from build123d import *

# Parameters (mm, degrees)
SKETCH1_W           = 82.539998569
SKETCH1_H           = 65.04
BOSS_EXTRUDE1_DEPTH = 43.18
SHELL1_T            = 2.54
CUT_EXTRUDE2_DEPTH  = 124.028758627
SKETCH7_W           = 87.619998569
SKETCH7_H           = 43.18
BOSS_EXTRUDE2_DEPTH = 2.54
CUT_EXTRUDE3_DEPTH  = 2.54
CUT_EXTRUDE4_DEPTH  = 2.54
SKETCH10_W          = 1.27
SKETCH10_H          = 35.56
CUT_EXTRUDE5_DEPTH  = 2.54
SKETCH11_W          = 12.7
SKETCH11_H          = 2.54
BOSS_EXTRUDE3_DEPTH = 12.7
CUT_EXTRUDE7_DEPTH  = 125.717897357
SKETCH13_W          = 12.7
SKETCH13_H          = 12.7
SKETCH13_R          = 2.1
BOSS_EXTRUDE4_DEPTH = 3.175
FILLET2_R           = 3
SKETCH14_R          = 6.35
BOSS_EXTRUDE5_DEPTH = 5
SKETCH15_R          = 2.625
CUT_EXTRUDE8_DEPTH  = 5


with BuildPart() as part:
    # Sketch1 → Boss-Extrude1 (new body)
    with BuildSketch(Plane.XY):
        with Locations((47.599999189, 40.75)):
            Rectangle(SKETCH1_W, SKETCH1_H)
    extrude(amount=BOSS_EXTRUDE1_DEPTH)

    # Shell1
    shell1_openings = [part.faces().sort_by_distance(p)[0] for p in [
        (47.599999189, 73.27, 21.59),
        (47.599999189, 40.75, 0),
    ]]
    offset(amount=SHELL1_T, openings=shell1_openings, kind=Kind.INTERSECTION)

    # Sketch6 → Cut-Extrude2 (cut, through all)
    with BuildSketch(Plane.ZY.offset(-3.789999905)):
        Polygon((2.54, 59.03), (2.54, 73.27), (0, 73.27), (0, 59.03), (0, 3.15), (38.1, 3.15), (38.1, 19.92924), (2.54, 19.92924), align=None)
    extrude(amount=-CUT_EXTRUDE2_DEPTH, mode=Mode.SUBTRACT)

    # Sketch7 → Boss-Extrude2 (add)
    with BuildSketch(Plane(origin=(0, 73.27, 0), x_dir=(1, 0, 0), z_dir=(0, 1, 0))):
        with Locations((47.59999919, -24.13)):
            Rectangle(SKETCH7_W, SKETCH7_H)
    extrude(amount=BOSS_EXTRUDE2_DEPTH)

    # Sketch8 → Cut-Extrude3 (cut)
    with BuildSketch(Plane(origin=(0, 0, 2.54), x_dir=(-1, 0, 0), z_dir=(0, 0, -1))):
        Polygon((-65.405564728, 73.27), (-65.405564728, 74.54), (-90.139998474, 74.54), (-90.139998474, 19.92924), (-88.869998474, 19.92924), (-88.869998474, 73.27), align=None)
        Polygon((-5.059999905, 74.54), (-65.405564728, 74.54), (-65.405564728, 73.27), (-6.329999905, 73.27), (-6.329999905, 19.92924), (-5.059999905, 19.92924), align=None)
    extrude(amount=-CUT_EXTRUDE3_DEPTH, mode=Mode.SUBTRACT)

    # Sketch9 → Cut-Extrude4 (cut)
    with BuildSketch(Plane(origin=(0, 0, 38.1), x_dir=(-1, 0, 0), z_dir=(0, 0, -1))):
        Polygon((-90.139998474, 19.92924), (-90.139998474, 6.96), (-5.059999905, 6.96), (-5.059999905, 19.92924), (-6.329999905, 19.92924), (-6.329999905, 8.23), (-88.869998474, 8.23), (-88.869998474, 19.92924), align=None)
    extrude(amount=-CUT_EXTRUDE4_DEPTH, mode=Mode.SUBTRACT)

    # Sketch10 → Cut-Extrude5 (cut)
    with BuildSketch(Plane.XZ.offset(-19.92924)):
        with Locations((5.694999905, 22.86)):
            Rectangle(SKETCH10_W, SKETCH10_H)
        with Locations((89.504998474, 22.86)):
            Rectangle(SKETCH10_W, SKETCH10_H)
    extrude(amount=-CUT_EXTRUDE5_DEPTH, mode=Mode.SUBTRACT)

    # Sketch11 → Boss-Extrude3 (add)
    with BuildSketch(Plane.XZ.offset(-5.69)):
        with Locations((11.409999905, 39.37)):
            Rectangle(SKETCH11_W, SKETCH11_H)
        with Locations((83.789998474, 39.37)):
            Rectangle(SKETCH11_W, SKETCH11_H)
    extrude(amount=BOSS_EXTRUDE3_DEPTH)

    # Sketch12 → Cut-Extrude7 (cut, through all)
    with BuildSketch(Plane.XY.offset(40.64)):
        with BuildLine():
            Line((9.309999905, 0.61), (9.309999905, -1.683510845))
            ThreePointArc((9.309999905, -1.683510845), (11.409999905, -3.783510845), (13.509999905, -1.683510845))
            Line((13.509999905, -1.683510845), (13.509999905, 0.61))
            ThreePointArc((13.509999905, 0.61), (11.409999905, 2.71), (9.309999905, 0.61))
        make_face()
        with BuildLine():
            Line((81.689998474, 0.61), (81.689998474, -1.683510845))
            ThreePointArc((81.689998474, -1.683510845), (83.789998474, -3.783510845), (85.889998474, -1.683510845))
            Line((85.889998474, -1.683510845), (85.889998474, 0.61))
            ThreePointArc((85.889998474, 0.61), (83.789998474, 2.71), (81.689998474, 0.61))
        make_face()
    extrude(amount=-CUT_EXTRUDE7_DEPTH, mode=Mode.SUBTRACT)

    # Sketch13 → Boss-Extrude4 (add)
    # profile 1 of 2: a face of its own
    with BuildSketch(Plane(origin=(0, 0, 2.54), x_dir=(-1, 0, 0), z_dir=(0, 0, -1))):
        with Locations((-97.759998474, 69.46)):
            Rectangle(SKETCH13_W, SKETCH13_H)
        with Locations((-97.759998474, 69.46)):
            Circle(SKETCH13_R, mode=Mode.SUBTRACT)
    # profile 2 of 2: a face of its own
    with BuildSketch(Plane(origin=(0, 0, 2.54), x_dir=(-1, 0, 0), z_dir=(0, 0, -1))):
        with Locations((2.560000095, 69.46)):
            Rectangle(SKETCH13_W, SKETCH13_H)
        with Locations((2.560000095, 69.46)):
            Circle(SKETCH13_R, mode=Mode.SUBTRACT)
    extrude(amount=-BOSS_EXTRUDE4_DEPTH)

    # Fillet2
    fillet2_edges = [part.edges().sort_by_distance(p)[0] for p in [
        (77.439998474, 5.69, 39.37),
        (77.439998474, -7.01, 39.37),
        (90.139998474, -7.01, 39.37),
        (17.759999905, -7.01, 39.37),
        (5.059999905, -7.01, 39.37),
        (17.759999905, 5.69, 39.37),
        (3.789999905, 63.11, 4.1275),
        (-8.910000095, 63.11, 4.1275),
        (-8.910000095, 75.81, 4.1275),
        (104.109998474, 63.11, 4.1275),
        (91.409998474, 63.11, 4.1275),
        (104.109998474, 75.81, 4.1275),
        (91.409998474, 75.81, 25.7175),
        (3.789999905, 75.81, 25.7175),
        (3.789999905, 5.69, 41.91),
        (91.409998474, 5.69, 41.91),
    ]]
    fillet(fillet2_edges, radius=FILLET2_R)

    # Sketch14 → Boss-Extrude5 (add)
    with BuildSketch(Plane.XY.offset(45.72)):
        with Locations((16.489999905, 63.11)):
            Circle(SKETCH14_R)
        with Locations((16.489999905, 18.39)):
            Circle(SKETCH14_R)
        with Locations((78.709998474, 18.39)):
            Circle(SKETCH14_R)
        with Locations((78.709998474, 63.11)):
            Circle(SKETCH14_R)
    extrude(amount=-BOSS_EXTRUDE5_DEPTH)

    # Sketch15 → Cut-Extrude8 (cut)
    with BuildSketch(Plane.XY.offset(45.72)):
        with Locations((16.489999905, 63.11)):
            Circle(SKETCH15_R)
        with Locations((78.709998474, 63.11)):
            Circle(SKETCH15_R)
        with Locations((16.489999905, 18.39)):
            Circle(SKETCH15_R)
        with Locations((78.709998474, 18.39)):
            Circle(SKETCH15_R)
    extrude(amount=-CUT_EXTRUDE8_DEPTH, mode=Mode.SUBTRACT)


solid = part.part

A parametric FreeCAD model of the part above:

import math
import FreeCAD as App
import Part
import Sketcher
from FreeCAD import Vector
Q = App.Units.Quantity


def edges_at(feature, points):
    """Names of the edges that pass closest to the given points."""
    edges = feature.Shape.Edges
    near = lambda p: min(range(len(edges)), key=lambda i: edges[i].distToShape(Part.Vertex(*p))[0])
    return sorted({f"Edge{near(p) + 1}" for p in points})


def faces_at(feature, points):
    """Names of the faces that lie closest to the given points."""
    faces = feature.Shape.Faces
    near = lambda p: min(range(len(faces)), key=lambda i: faces[i].distToShape(Part.Vertex(*p))[0])
    return sorted({f"Face{near(p) + 1}" for p in points})

doc = App.newDocument("Part")
body = doc.addObject("PartDesign::Body", "Body")

# Sketch on XY plane
sketch1 = body.newObject("Sketcher::SketchObject", "Sketch")
sketch1.AttachmentSupport = (doc.getObject("XY_Plane"), [""])
sketch1.MapMode = "FlatFace"
sketch1.addGeometry(Part.LineSegment(Vector(6, 73, 0), Vector(6, 8, 0)), False)
sketch1.addGeometry(Part.LineSegment(Vector(6, 8, 0), Vector(89, 8, 0)), False)
sketch1.addGeometry(Part.LineSegment(Vector(89, 8, 0), Vector(89, 73, 0)), False)
sketch1.addGeometry(Part.LineSegment(Vector(89, 73, 0), Vector(6, 73, 0)), False)
sketch1.addConstraint(Sketcher.Constraint("Coincident", 0, 2, 1, 1))
sketch1.addConstraint(Sketcher.Constraint("Coincident", 1, 2, 2, 1))
sketch1.addConstraint(Sketcher.Constraint("Coincident", 2, 2, 3, 1))
sketch1.addConstraint(Sketcher.Constraint("Coincident", 3, 2, 0, 1))
sketch1.addConstraint(Sketcher.Constraint("Vertical", 0))
sketch1.addConstraint(Sketcher.Constraint("Horizontal", 1))
sketch1.addConstraint(Sketcher.Constraint("Vertical", 2))
sketch1.addConstraint(Sketcher.Constraint("Horizontal", 3))
sketch1.addConstraint(Sketcher.Constraint("DistanceX", 1, 1, 1, 2, 82.539999))
sketch1.addConstraint(Sketcher.Constraint("DistanceY", 0, 2, 0, 1, 65.04))
sketch1.addConstraint(Sketcher.Constraint("DistanceX", -1, 1, 0, 2, 6.33))
sketch1.addConstraint(Sketcher.Constraint("DistanceY", -1, 1, 0, 2, 8.23))
pad1 = body.newObject("PartDesign::Pad", "Pad")
pad1.Profile = sketch1
pad1.Length = Q("1.7 in")
doc.recompute()

thickness = body.newObject("PartDesign::Thickness", "Thickness")
thickness.Base = (pad1, faces_at(pad1, [(47.6, 73.27, 21.59), (47.6, 40.75, 0)]))
thickness.Value = Q("0.1 in")
thickness.Reversed = False
thickness.Join = "Intersection"

# Sketch on YZ plane
sketch2 = body.newObject("Sketcher::SketchObject", "Sketch001")
sketch2.AttachmentSupport = (doc.getObject("YZ_Plane"), [""])
sketch2.MapMode = "FlatFace"
sketch2.AttachmentOffset = App.Placement(Vector(0, 0, 3.79), App.Rotation())
sketch2.addGeometry(Part.LineSegment(Vector(73.3, 2.5, 0), Vector(73.3, 0, 0)), False)
sketch2.addGeometry(Part.LineSegment(Vector(73.3, 0, 0), Vector(3.1, 0, 0)), False)
sketch2.addGeometry(Part.LineSegment(Vector(3.1, 0, 0), Vector(3.1, 38.1, 0)), False)
sketch2.addGeometry(Part.LineSegment(Vector(3.1, 38.1, 0), Vector(19.9, 38.1, 0)), False)
sketch2.addGeometry(Part.LineSegment(Vector(19.9, 38.1, 0), Vector(19.9, 2.5, 0)), False)
sketch2.addGeometry(Part.LineSegment(Vector(19.9, 2.5, 0), Vector(73.3, 2.5, 0)), False)
sketch2.addConstraint(Sketcher.Constraint("Coincident", 0, 2, 1, 1))
sketch2.addConstraint(Sketcher.Constraint("Coincident", 1, 2, 2, 1))
sketch2.addConstraint(Sketcher.Constraint("Coincident", 2, 2, 3, 1))
sketch2.addConstraint(Sketcher.Constraint("Coincident", 3, 2, 4, 1))
sketch2.addConstraint(Sketcher.Constraint("Coincident", 4, 2, 5, 1))
sketch2.addConstraint(Sketcher.Constraint("Coincident", 5, 2, 0, 1))
sketch2.addConstraint(Sketcher.Constraint("Vertical", 0))
sketch2.addConstraint(Sketcher.Constraint("Horizontal", 1))
sketch2.addConstraint(Sketcher.Constraint("Vertical", 2))
sketch2.addConstraint(Sketcher.Constraint("Horizontal", 3))
sketch2.addConstraint(Sketcher.Constraint("Vertical", 4))
sketch2.addConstraint(Sketcher.Constraint("Horizontal", 5))
sketch2.addConstraint(Sketcher.Constraint("PointOnObject", 0, 2, -1))
sketch2.addConstraint(Sketcher.Constraint("DistanceY", 0, 2, 0, 1, Q("0.1 in")))
sketch2.addConstraint(Sketcher.Constraint("DistanceY", 2, 1, 2, 2, Q("1.5 in")))
sketch2.addConstraint(Sketcher.Constraint("DistanceX", 3, 1, 3, 2, Q("0.6606 in")))
sketch2.addConstraint(Sketcher.Constraint("DistanceX", 1, 2, 1, 1, 70.12))
sketch2.addConstraint(Sketcher.Constraint("DistanceX", -1, 1, 0, 2, 73.27))
pocket1 = body.newObject("PartDesign::Pocket", "Pocket")
pocket1.Profile = sketch2
pocket1.Type = "ThroughAll"
pocket1.Reversed = True

# Sketch on XZ plane
sketch3 = body.newObject("Sketcher::SketchObject", "Sketch002")
sketch3.AttachmentSupport = (doc.getObject("XZ_Plane"), [""])
sketch3.MapMode = "FlatFace"
sketch3.AttachmentOffset = App.Placement(Vector(0, 0, -73.27), App.Rotation())
sketch3.addGeometry(Part.LineSegment(Vector(4, 3, 0), Vector(4, 46, 0)), False)
sketch3.addGeometry(Part.LineSegment(Vector(4, 46, 0), Vector(91, 46, 0)), False)
sketch3.addGeometry(Part.LineSegment(Vector(91, 46, 0), Vector(91, 3, 0)), False)
sketch3.addGeometry(Part.LineSegment(Vector(91, 3, 0), Vector(4, 3, 0)), False)
sketch3.addConstraint(Sketcher.Constraint("Coincident", 0, 2, 1, 1))
sketch3.addConstraint(Sketcher.Constraint("Coincident", 1, 2, 2, 1))
sketch3.addConstraint(Sketcher.Constraint("Coincident", 2, 2, 3, 1))
sketch3.addConstraint(Sketcher.Constraint("Coincident", 3, 2, 0, 1))
sketch3.addConstraint(Sketcher.Constraint("Vertical", 0))
sketch3.addConstraint(Sketcher.Constraint("Horizontal", 1))
sketch3.addConstraint(Sketcher.Constraint("Vertical", 2))
sketch3.addConstraint(Sketcher.Constraint("Horizontal", 3))
sketch3.addConstraint(Sketcher.Constraint("DistanceY", 0, 1, 0, 2, Q("1.7 in")))
sketch3.addConstraint(Sketcher.Constraint("DistanceY", -1, 1, 0, 2, Q("1.8 in")))
sketch3.addConstraint(Sketcher.Constraint("DistanceX", 1, 1, 1, 2, 87.619999))
sketch3.addConstraint(Sketcher.Constraint("DistanceX", -1, 1, 0, 2, 3.79))
pad2 = body.newObject("PartDesign::Pad", "Pad001")
pad2.Profile = sketch3
pad2.Length = Q("0.1 in")
pad2.Reversed = True

# Sketch on XY plane
sketch4 = body.newObject("Sketcher::SketchObject", "Sketch003")
sketch4.AttachmentSupport = (doc.getObject("XY_Plane"), [""])
sketch4.MapMode = "FlatFace"
sketch4.AttachmentOffset = App.Placement(Vector(0, 0, 0.1 * 25.4), App.Rotation())
sketch4.addGeometry(Part.LineSegment(Vector(90.1, 74.5, 0), Vector(90.1, 19.9, 0)), False)
sketch4.addGeometry(Part.LineSegment(Vector(90.1, 19.9, 0), Vector(88.9, 19.9, 0)), False)
sketch4.addGeometry(Part.LineSegment(Vector(88.9, 19.9, 0), Vector(88.9, 73.3, 0)), False)
sketch4.addGeometry(Part.LineSegment(Vector(88.9, 73.3, 0), Vector(6.3, 73.3, 0)), False)
sketch4.addGeometry(Part.LineSegment(Vector(6.3, 73.3, 0), Vector(6.3, 19.9, 0)), False)
sketch4.addGeometry(Part.LineSegment(Vector(6.3, 19.9, 0), Vector(5.1, 19.9, 0)), False)
sketch4.addGeometry(Part.LineSegment(Vector(5.1, 19.9, 0), Vector(5.1, 74.5, 0)), False)
sketch4.addGeometry(Part.LineSegment(Vector(5.1, 74.5, 0), Vector(90.1, 74.5, 0)), False)
sketch4.addConstraint(Sketcher.Constraint("Coincident", 0, 2, 1, 1))
sketch4.addConstraint(Sketcher.Constraint("Coincident", 1, 2, 2, 1))
sketch4.addConstraint(Sketcher.Constraint("Coincident", 2, 2, 3, 1))
sketch4.addConstraint(Sketcher.Constraint("Coincident", 3, 2, 4, 1))
sketch4.addConstraint(Sketcher.Constraint("Coincident", 4, 2, 5, 1))
sketch4.addConstraint(Sketcher.Constraint("Coincident", 5, 2, 6, 1))
sketch4.addConstraint(Sketcher.Constraint("Coincident", 6, 2, 7, 1))
sketch4.addConstraint(Sketcher.Constraint("Coincident", 7, 2, 0, 1))
sketch4.addConstraint(Sketcher.Constraint("Vertical", 0))
sketch4.addConstraint(Sketcher.Constraint("Horizontal", 1))
sketch4.addConstraint(Sketcher.Constraint("Vertical", 2))
sketch4.addConstraint(Sketcher.Constraint("Horizontal", 3))
sketch4.addConstraint(Sketcher.Constraint("Vertical", 4))
sketch4.addConstraint(Sketcher.Constraint("Horizontal", 5))
sketch4.addConstraint(Sketcher.Constraint("Vertical", 6))
sketch4.addConstraint(Sketcher.Constraint("Horizontal", 7))
sketch4.addConstraint(Sketcher.Constraint("Horizontal", 1, 2, 4, 2))
sketch4.addConstraint(Sketcher.Constraint("Equal", 1, 5))
sketch4.addConstraint(Sketcher.Constraint("DistanceX", 1, 2, 1, 1, Q("0.05 in")))
sketch4.addConstraint(Sketcher.Constraint("DistanceY", 3, 2, 6, 2, Q("0.05 in")))
sketch4.addConstraint(Sketcher.Constraint("DistanceX", 3, 2, 3, 1, 82.539999))
sketch4.addConstraint(Sketcher.Constraint("DistanceY", 0, 2, 0, 1, 54.61076))
sketch4.addConstraint(Sketcher.Constraint("DistanceX", -1, 1, 0, 2, 90.139998))
sketch4.addConstraint(Sketcher.Constraint("DistanceY", -1, 1, 2, 2, 73.27))
pocket2 = body.newObject("PartDesign::Pocket", "Pocket001")
pocket2.Profile = sketch4
pocket2.Length = Q("0.1 in")
pocket2.Reversed = True

# Sketch on XY plane
sketch5 = body.newObject("Sketcher::SketchObject", "Sketch004")
sketch5.AttachmentSupport = (doc.getObject("XY_Plane"), [""])
sketch5.MapMode = "FlatFace"
sketch5.AttachmentOffset = App.Placement(Vector(0, 0, 1.5 * 25.4), App.Rotation())
sketch5.addGeometry(Part.LineSegment(Vector(90.1, 19.9, 0), Vector(90.1, 7, 0)), False)
sketch5.addGeometry(Part.LineSegment(Vector(90.1, 7, 0), Vector(5.1, 7, 0)), False)
sketch5.addGeometry(Part.LineSegment(Vector(5.1, 7, 0), Vector(5.1, 19.9, 0)), False)
sketch5.addGeometry(Part.LineSegment(Vector(5.1, 19.9, 0), Vector(6.3, 19.9, 0)), False)
sketch5.addGeometry(Part.LineSegment(Vector(6.3, 19.9, 0), Vector(6.3, 8.2, 0)), False)
sketch5.addGeometry(Part.LineSegment(Vector(6.3, 8.2, 0), Vector(88.9, 8.2, 0)), False)
sketch5.addGeometry(Part.LineSegment(Vector(88.9, 8.2, 0), Vector(88.9, 19.9, 0)), False)
sketch5.addGeometry(Part.LineSegment(Vector(88.9, 19.9, 0), Vector(90.1, 19.9, 0)), False)
sketch5.addConstraint(Sketcher.Constraint("Coincident", 0, 2, 1, 1))
sketch5.addConstraint(Sketcher.Constraint("Coincident", 1, 2, 2, 1))
sketch5.addConstraint(Sketcher.Constraint("Coincident", 2, 2, 3, 1))
sketch5.addConstraint(Sketcher.Constraint("Coincident", 3, 2, 4, 1))
sketch5.addConstraint(Sketcher.Constraint("Coincident", 4, 2, 5, 1))
sketch5.addConstraint(Sketcher.Constraint("Coincident", 5, 2, 6, 1))
sketch5.addConstraint(Sketcher.Constraint("Coincident", 6, 2, 7, 1))
sketch5.addConstraint(Sketcher.Constraint("Coincident", 7, 2, 0, 1))
sketch5.addConstraint(Sketcher.Constraint("Vertical", 0))
sketch5.addConstraint(Sketcher.Constraint("Horizontal", 1))
sketch5.addConstraint(Sketcher.Constraint("Vertical", 2))
sketch5.addConstraint(Sketcher.Constraint("Horizontal", 3))
sketch5.addConstraint(Sketcher.Constraint("Vertical", 4))
sketch5.addConstraint(Sketcher.Constraint("Horizontal", 5))
sketch5.addConstraint(Sketcher.Constraint("Vertical", 6))
sketch5.addConstraint(Sketcher.Constraint("Horizontal", 7))
sketch5.addConstraint(Sketcher.Constraint("Horizontal", 3, 2, 6, 2))
sketch5.addConstraint(Sketcher.Constraint("Equal", 3, 7))
sketch5.addConstraint(Sketcher.Constraint("DistanceX", 3, 1, 3, 2, Q("0.05 in")))
sketch5.addConstraint(Sketcher.Constraint("DistanceY", 1, 2, 4, 2, Q("0.05 in")))
sketch5.addConstraint(Sketcher.Constraint("DistanceY", 0, 2, 0, 1, Q("0.5106 in")))
sketch5.addConstraint(Sketcher.Constraint("DistanceX", 1, 2, 1, 1, 85.079999))
sketch5.addConstraint(Sketcher.Constraint("DistanceX", -1, 1, 0, 2, 90.139998))
sketch5.addConstraint(Sketcher.Constraint("DistanceY", -1, 1, 0, 2, 6.96))
pocket3 = body.newObject("PartDesign::Pocket", "Pocket002")
pocket3.Profile = sketch5
pocket3.Length = Q("0.1 in")
pocket3.Reversed = True

# Sketch on XZ plane
sketch6 = body.newObject("Sketcher::SketchObject", "Sketch005")
sketch6.AttachmentSupport = (doc.getObject("XZ_Plane"), [""])
sketch6.MapMode = "FlatFace"
sketch6.AttachmentOffset = App.Placement(Vector(0, 0, -19.92924), App.Rotation())
sketch6.addGeometry(Part.LineSegment(Vector(5.1, 40.6, 0), Vector(5.1, 5.1, 0)), False)
sketch6.addGeometry(Part.LineSegment(Vector(5.1, 5.1, 0), Vector(6.3, 5.1, 0)), False)
sketch6.addGeometry(Part.LineSegment(Vector(6.3, 5.1, 0), Vector(6.3, 40.6, 0)), False)
sketch6.addGeometry(Part.LineSegment(Vector(6.3, 40.6, 0), Vector(5.1, 40.6, 0)), False)
sketch6.addGeometry(Part.LineSegment(Vector(88.9, 40.6, 0), Vector(88.9, 5.1, 0)), False)
sketch6.addGeometry(Part.LineSegment(Vector(88.9, 5.1, 0), Vector(90.1, 5.1, 0)), False)
sketch6.addGeometry(Part.LineSegment(Vector(90.1, 5.1, 0), Vector(90.1, 40.6, 0)), False)
sketch6.addGeometry(Part.LineSegment(Vector(90.1, 40.6, 0), Vector(88.9, 40.6, 0)), False)
sketch6.addConstraint(Sketcher.Constraint("Coincident", 0, 2, 1, 1))
sketch6.addConstraint(Sketcher.Constraint("Coincident", 1, 2, 2, 1))
sketch6.addConstraint(Sketcher.Constraint("Coincident", 2, 2, 3, 1))
sketch6.addConstraint(Sketcher.Constraint("Coincident", 3, 2, 0, 1))
sketch6.addConstraint(Sketcher.Constraint("Coincident", 4, 2, 5, 1))
sketch6.addConstraint(Sketcher.Constraint("Coincident", 5, 2, 6, 1))
sketch6.addConstraint(Sketcher.Constraint("Coincident", 6, 2, 7, 1))
sketch6.addConstraint(Sketcher.Constraint("Coincident", 7, 2, 4, 1))
sketch6.addConstraint(Sketcher.Constraint("Vertical", 0))
sketch6.addConstraint(Sketcher.Constraint("Horizontal", 1))
sketch6.addConstraint(Sketcher.Constraint("Vertical", 2))
sketch6.addConstraint(Sketcher.Constraint("Horizontal", 3))
sketch6.addConstraint(Sketcher.Constraint("Vertical", 4))
sketch6.addConstraint(Sketcher.Constraint("Horizontal", 5))
sketch6.addConstraint(Sketcher.Constraint("Vertical", 6))
sketch6.addConstraint(Sketcher.Constraint("Horizontal", 7))
sketch6.addConstraint(Sketcher.Constraint("Horizontal", 1, 2, 4, 2))
sketch6.addConstraint(Sketcher.Constraint("Horizontal", 3, 2, 6, 2))
sketch6.addConstraint(Sketcher.Constraint("Equal", 3, 5))
sketch6.addConstraint(Sketcher.Constraint("DistanceY", 0, 2, 0, 1, Q("1.4 in")))
sketch6.addConstraint(Sketcher.Constraint("DistanceX", 1, 1, 1, 2, Q("0.05 in")))
sketch6.addConstraint(Sketcher.Constraint("DistanceY", -1, 1, 0, 2, Q("0.2 in")))
sketch6.addConstraint(Sketcher.Constraint("DistanceX", -1, 1, 0, 2, 5.06))
sketch6.addConstraint(Sketcher.Constraint("DistanceX", -1, 1, 4, 2, 88.869998))
pocket4 = body.newObject("PartDesign::Pocket", "Pocket003")
pocket4.Profile = sketch6
pocket4.Length = Q("0.1 in")

# Sketch on XZ plane
sketch7 = body.newObject("Sketcher::SketchObject", "Sketch006")
sketch7.AttachmentSupport = (doc.getObject("XZ_Plane"), [""])
sketch7.MapMode = "FlatFace"
sketch7.AttachmentOffset = App.Placement(Vector(0, 0, -5.69), App.Rotation())
sketch7.addGeometry(Part.LineSegment(Vector(5.1, 40.6, 0), Vector(5.1, 38.1, 0)), False)
sketch7.addGeometry(Part.LineSegment(Vector(5.1, 38.1, 0), Vector(17.8, 38.1, 0)), False)
sketch7.addGeometry(Part.LineSegment(Vector(17.8, 38.1, 0), Vector(17.8, 40.6, 0)), False)
sketch7.addGeometry(Part.LineSegment(Vector(17.8, 40.6, 0), Vector(5.1, 40.6, 0)), False)
sketch7.addGeometry(Part.LineSegment(Vector(77.4, 40.6, 0), Vector(77.4, 38.1, 0)), False)
sketch7.addGeometry(Part.LineSegment(Vector(77.4, 38.1, 0), Vector(90.1, 38.1, 0)), False)
sketch7.addGeometry(Part.LineSegment(Vector(90.1, 38.1, 0), Vector(90.1, 40.6, 0)), False)
sketch7.addGeometry(Part.LineSegment(Vector(90.1, 40.6, 0), Vector(77.4, 40.6, 0)), False)
sketch7.addConstraint(Sketcher.Constraint("Coincident", 0, 2, 1, 1))
sketch7.addConstraint(Sketcher.Constraint("Coincident", 1, 2, 2, 1))
sketch7.addConstraint(Sketcher.Constraint("Coincident", 2, 2, 3, 1))
sketch7.addConstraint(Sketcher.Constraint("Coincident", 3, 2, 0, 1))
sketch7.addConstraint(Sketcher.Constraint("Coincident", 4, 2, 5, 1))
sketch7.addConstraint(Sketcher.Constraint("Coincident", 5, 2, 6, 1))
sketch7.addConstraint(Sketcher.Constraint("Coincident", 6, 2, 7, 1))
sketch7.addConstraint(Sketcher.Constraint("Coincident", 7, 2, 4, 1))
sketch7.addConstraint(Sketcher.Constraint("Vertical", 0))
sketch7.addConstraint(Sketcher.Constraint("Horizontal", 1))
sketch7.addConstraint(Sketcher.Constraint("Vertical", 2))
sketch7.addConstraint(Sketcher.Constraint("Horizontal", 3))
sketch7.addConstraint(Sketcher.Constraint("Vertical", 4))
sketch7.addConstraint(Sketcher.Constraint("Horizontal", 5))
sketch7.addConstraint(Sketcher.Constraint("Vertical", 6))
sketch7.addConstraint(Sketcher.Constraint("Horizontal", 7))
sketch7.addConstraint(Sketcher.Constraint("Horizontal", 1, 2, 4, 2))
sketch7.addConstraint(Sketcher.Constraint("Horizontal", 3, 2, 6, 2))
sketch7.addConstraint(Sketcher.Constraint("Equal", 3, 5))
sketch7.addConstraint(Sketcher.Constraint("DistanceX", 1, 1, 1, 2, Q("0.5 in")))
sketch7.addConstraint(Sketcher.Constraint("DistanceY", 0, 2, 0, 1, Q("0.1 in")))
sketch7.addConstraint(Sketcher.Constraint("DistanceY", -1, 1, 0, 2, Q("1.5 in")))
sketch7.addConstraint(Sketcher.Constraint("DistanceX", -1, 1, 0, 2, 5.06))
sketch7.addConstraint(Sketcher.Constraint("DistanceX", -1, 1, 4, 2, 77.439998))
pad3 = body.newObject("PartDesign::Pad", "Pad002")
pad3.Profile = sketch7
pad3.Length = Q("0.5 in")

# Sketch on XY plane
sketch8 = body.newObject("Sketcher::SketchObject", "Sketch007")
sketch8.AttachmentSupport = (doc.getObject("XY_Plane"), [""])
sketch8.MapMode = "FlatFace"
sketch8.AttachmentOffset = App.Placement(Vector(0, 0, 1.6 * 25.4), App.Rotation())
sketch8.addGeometry(Part.LineSegment(Vector(9.3, 0.6, 0), Vector(9.3, -1.7, 0)), False)
sketch8.addGeometry(Part.ArcOfCircle(Part.Circle(Vector(11.4, -1.7, 0), Vector(0, 0, 1), 2.1), math.radians(180), math.radians(360)), False)
sketch8.addGeometry(Part.LineSegment(Vector(13.5, -1.7, 0), Vector(13.5, 0.6, 0)), False)
sketch8.addGeometry(Part.ArcOfCircle(Part.Circle(Vector(11.4, 0.6, 0), Vector(0, 0, 1), 2.1), math.radians(0), math.radians(180)), False)
sketch8.addGeometry(Part.LineSegment(Vector(81.7, 0.6, 0), Vector(81.7, -1.7, 0)), False)
sketch8.addGeometry(Part.ArcOfCircle(Part.Circle(Vector(83.8, -1.7, 0), Vector(0, 0, 1), 2.1), math.radians(180), math.radians(360)), False)
sketch8.addGeometry(Part.LineSegment(Vector(85.9, -1.7, 0), Vector(85.9, 0.6, 0)), False)
sketch8.addGeometry(Part.ArcOfCircle(Part.Circle(Vector(83.8, 0.6, 0), Vector(0, 0, 1), 2.1), math.radians(0), math.radians(180)), False)
sketch8.addConstraint(Sketcher.Constraint("Tangent", 0, 2, 1, 1))
sketch8.addConstraint(Sketcher.Constraint("Tangent", 1, 2, 2, 1))
sketch8.addConstraint(Sketcher.Constraint("Tangent", 2, 2, 3, 1))
sketch8.addConstraint(Sketcher.Constraint("Tangent", 3, 2, 0, 1))
sketch8.addConstraint(Sketcher.Constraint("Tangent", 4, 2, 5, 1))
sketch8.addConstraint(Sketcher.Constraint("Tangent", 5, 2, 6, 1))
sketch8.addConstraint(Sketcher.Constraint("Tangent", 6, 2, 7, 1))
sketch8.addConstraint(Sketcher.Constraint("Tangent", 7, 2, 4, 1))
sketch8.addConstraint(Sketcher.Constraint("Vertical", 0))
sketch8.addConstraint(Sketcher.Constraint("Vertical", 2))
sketch8.addConstraint(Sketcher.Constraint("Vertical", 4))
sketch8.addConstraint(Sketcher.Constraint("Vertical", 6))
sketch8.addConstraint(Sketcher.Constraint("Equal", 3, 5))
sketch8.addConstraint(Sketcher.Constraint("Horizontal", 1, 3, 5, 3))
sketch8.addConstraint(Sketcher.Constraint("Horizontal", 3, 3, 7, 3))
sketch8.addConstraint(Sketcher.Constraint("Radius", 1, 2.1))
sketch8.addConstraint(Sketcher.Constraint("DistanceY", 0, 2, 0, 1, 2.293511))
sketch8.addConstraint(Sketcher.Constraint("DistanceX", -1, 1, 1, 3, 11.41))
sketch8.addConstraint(Sketcher.Constraint("DistanceY", -1, 1, 3, 3, 0.61))
sketch8.addConstraint(Sketcher.Constraint("DistanceX", -1, 1, 5, 3, 83.789998))
pocket5 = body.newObject("PartDesign::Pocket", "Pocket004")
pocket5.Profile = sketch8
pocket5.Type = "ThroughAll"

# Sketch on XY plane
sketch9 = body.newObject("Sketcher::SketchObject", "Sketch008")
sketch9.AttachmentSupport = (doc.getObject("XY_Plane"), [""])
sketch9.MapMode = "FlatFace"
sketch9.AttachmentOffset = App.Placement(Vector(0, 0, 0.1 * 25.4), App.Rotation())
sketch9.addGeometry(Part.LineSegment(Vector(104.1, 75.8, 0), Vector(104.1, 63.1, 0)), False)
sketch9.addGeometry(Part.LineSegment(Vector(104.1, 63.1, 0), Vector(91.4, 63.1, 0)), False)
sketch9.addGeometry(Part.LineSegment(Vector(91.4, 63.1, 0), Vector(91.4, 75.8, 0)), False)
sketch9.addGeometry(Part.LineSegment(Vector(91.4, 75.8, 0), Vector(104.1, 75.8, 0)), False)
sketch9.addGeometry(Part.Circle(Vector(97.8, 69.5, 0), Vector(0, 0, 1), 2.1), False)
sketch9.addGeometry(Part.LineSegment(Vector(3.8, 75.8, 0), Vector(3.8, 63.1, 0)), False)
sketch9.addGeometry(Part.LineSegment(Vector(3.8, 63.1, 0), Vector(-8.9, 63.1, 0)), False)
sketch9.addGeometry(Part.LineSegment(Vector(-8.9, 63.1, 0), Vector(-8.9, 75.8, 0)), False)
sketch9.addGeometry(Part.LineSegment(Vector(-8.9, 75.8, 0), Vector(3.8, 75.8, 0)), False)
sketch9.addGeometry(Part.Circle(Vector(-2.6, 69.5, 0), Vector(0, 0, 1), 2.1), False)
sketch9.addConstraint(Sketcher.Constraint("Coincident", 0, 2, 1, 1))
sketch9.addConstraint(Sketcher.Constraint("Coincident", 1, 2, 2, 1))
sketch9.addConstraint(Sketcher.Constraint("Coincident", 2, 2, 3, 1))
sketch9.addConstraint(Sketcher.Constraint("Coincident", 3, 2, 0, 1))
sketch9.addConstraint(Sketcher.Constraint("Coincident", 5, 2, 6, 1))
sketch9.addConstraint(Sketcher.Constraint("Coincident", 6, 2, 7, 1))
sketch9.addConstraint(Sketcher.Constraint("Coincident", 7, 2, 8, 1))
sketch9.addConstraint(Sketcher.Constraint("Coincident", 8, 2, 5, 1))
sketch9.addConstraint(Sketcher.Constraint("Vertical", 0))
sketch9.addConstraint(Sketcher.Constraint("Horizontal", 1))
sketch9.addConstraint(Sketcher.Constraint("Vertical", 2))
sketch9.addConstraint(Sketcher.Constraint("Horizontal", 3))
sketch9.addConstraint(Sketcher.Constraint("Vertical", 5))
sketch9.addConstraint(Sketcher.Constraint("Horizontal", 6))
sketch9.addConstraint(Sketcher.Constraint("Vertical", 7))
sketch9.addConstraint(Sketcher.Constraint("Horizontal", 8))
sketch9.addConstraint(Sketcher.Constraint("Equal", 4, 9))
sketch9.addConstraint(Sketcher.Constraint("Horizontal", 4, 3, 9, 3))
sketch9.addConstraint(Sketcher.Constraint("Horizontal", 1, 2, 5, 2))
sketch9.addConstraint(Sketcher.Constraint("Horizontal", 3, 2, 7, 2))
sketch9.addConstraint(Sketcher.Constraint("Equal", 3, 6))
sketch9.addConstraint(Sketcher.Constraint("Equal", 8, 0))
sketch9.addConstraint(Sketcher.Constraint("DistanceX", 1, 2, 1, 1, Q("0.5 in")))
sketch9.addConstraint(Sketcher.Constraint("Diameter", 4, 4.2))
sketch9.addConstraint(Sketcher.Constraint("DistanceX", 4, 3, 0, 2, Q("0.25 in")))
sketch9.addConstraint(Sketcher.Constraint("DistanceY", 0, 2, 4, 3, Q("0.25 in")))
sketch9.addConstraint(Sketcher.Constraint("DistanceX", 9, 3, 5, 2, Q("0.25 in")))
sketch9.addConstraint(Sketcher.Constraint("DistanceX", -1, 1, 4, 3, 97.759998))
sketch9.addConstraint(Sketcher.Constraint("DistanceY", -1, 1, 4, 3, 69.46))
sketch9.addConstraint(Sketcher.Constraint("DistanceX", 9, 3, -1, 1, 2.56))
pad4 = body.newObject("PartDesign::Pad", "Pad003")
pad4.Profile = sketch9
pad4.Length = Q("0.125 in")
doc.recompute()

fillet = body.newObject("PartDesign::Fillet", "Fillet")
fillet.Base = (pad4, edges_at(pad4, [
    (77.44, 5.69, 39.37),
    (77.44, -7.01, 39.37),
    (90.14, -7.01, 39.37),
    (17.76, -7.01, 39.37),
    (5.06, -7.01, 39.37),
    (17.76, 5.69, 39.37),
    (3.79, 63.11, 4.128),
    (-8.91, 63.11, 4.128),
    (-8.91, 75.81, 4.128),
    (104.11, 63.11, 4.128),
    (91.41, 63.11, 4.128),
    (104.11, 75.81, 4.128),
    (91.41, 75.81, 25.718),
    (3.79, 75.81, 25.718),
    (3.79, 5.69, 41.91),
    (91.41, 5.69, 41.91),
]))
fillet.Radius = 3

# Sketch on XY plane
sketch10 = body.newObject("Sketcher::SketchObject", "Sketch009")
sketch10.AttachmentSupport = (doc.getObject("XY_Plane"), [""])
sketch10.MapMode = "FlatFace"
sketch10.AttachmentOffset = App.Placement(Vector(0, 0, 1.8 * 25.4), App.Rotation())
sketch10.addGeometry(Part.Circle(Vector(16, 63, 0), Vector(0, 0, 1), 6), False)
sketch10.addGeometry(Part.Circle(Vector(16, 18, 0), Vector(0, 0, 1), 6), False)
sketch10.addGeometry(Part.Circle(Vector(79, 18, 0), Vector(0, 0, 1), 6), False)
sketch10.addGeometry(Part.Circle(Vector(79, 63, 0), Vector(0, 0, 1), 6), False)
sketch10.addConstraint(Sketcher.Constraint("Equal", 0, 1))
sketch10.addConstraint(Sketcher.Constraint("Equal", 1, 2))
sketch10.addConstraint(Sketcher.Constraint("Equal", 2, 3))
sketch10.addConstraint(Sketcher.Constraint("Horizontal", 1, 3, 2, 3))
sketch10.addConstraint(Sketcher.Constraint("Horizontal", 0, 3, 3, 3))
sketch10.addConstraint(Sketcher.Constraint("Vertical", 0, 3, 1, 3))
sketch10.addConstraint(Sketcher.Constraint("Vertical", 2, 3, 3, 3))
sketch10.addConstraint(Sketcher.Constraint("Diameter", 0, Q("0.5 in")))
sketch10.addConstraint(Sketcher.Constraint("DistanceX", -1, 1, 0, 3, 16.49))
sketch10.addConstraint(Sketcher.Constraint("DistanceY", -1, 1, 0, 3, 63.11))
sketch10.addConstraint(Sketcher.Constraint("DistanceY", -1, 1, 1, 3, 18.39))
sketch10.addConstraint(Sketcher.Constraint("DistanceX", -1, 1, 2, 3, 78.709998))
pad5 = body.newObject("PartDesign::Pad", "Pad004")
pad5.Profile = sketch10
pad5.Length = 5
pad5.Reversed = True

# Sketch on XY plane
sketch11 = body.newObject("Sketcher::SketchObject", "Sketch010")
sketch11.AttachmentSupport = (doc.getObject("XY_Plane"), [""])
sketch11.MapMode = "FlatFace"
sketch11.AttachmentOffset = App.Placement(Vector(0, 0, 1.8 * 25.4), App.Rotation())
sketch11.addGeometry(Part.Circle(Vector(16.5, 63.1, 0), Vector(0, 0, 1), 2.6), False)
sketch11.addGeometry(Part.Circle(Vector(78.7, 63.1, 0), Vector(0, 0, 1), 2.6), False)
sketch11.addGeometry(Part.Circle(Vector(16.5, 18.4, 0), Vector(0, 0, 1), 2.6), False)
sketch11.addGeometry(Part.Circle(Vector(78.7, 18.4, 0), Vector(0, 0, 1), 2.6), False)
sketch11.addConstraint(Sketcher.Constraint("Equal", 0, 1))
sketch11.addConstraint(Sketcher.Constraint("Equal", 1, 2))
sketch11.addConstraint(Sketcher.Constraint("Equal", 2, 3))
sketch11.addConstraint(Sketcher.Constraint("Horizontal", 0, 3, 1, 3))
sketch11.addConstraint(Sketcher.Constraint("Horizontal", 2, 3, 3, 3))
sketch11.addConstraint(Sketcher.Constraint("Vertical", 0, 3, 2, 3))
sketch11.addConstraint(Sketcher.Constraint("Vertical", 1, 3, 3, 3))
sketch11.addConstraint(Sketcher.Constraint("Diameter", 0, 5.25))
sketch11.addConstraint(Sketcher.Constraint("DistanceX", -1, 1, 0, 3, 16.49))
sketch11.addConstraint(Sketcher.Constraint("DistanceY", -1, 1, 0, 3, 63.11))
sketch11.addConstraint(Sketcher.Constraint("DistanceX", -1, 1, 1, 3, 78.709998))
sketch11.addConstraint(Sketcher.Constraint("DistanceY", -1, 1, 2, 3, 18.39))
pocket6 = body.newObject("PartDesign::Pocket", "Pocket005")
pocket6.Profile = sketch11
pocket6.Length = 5

doc.recompute()
